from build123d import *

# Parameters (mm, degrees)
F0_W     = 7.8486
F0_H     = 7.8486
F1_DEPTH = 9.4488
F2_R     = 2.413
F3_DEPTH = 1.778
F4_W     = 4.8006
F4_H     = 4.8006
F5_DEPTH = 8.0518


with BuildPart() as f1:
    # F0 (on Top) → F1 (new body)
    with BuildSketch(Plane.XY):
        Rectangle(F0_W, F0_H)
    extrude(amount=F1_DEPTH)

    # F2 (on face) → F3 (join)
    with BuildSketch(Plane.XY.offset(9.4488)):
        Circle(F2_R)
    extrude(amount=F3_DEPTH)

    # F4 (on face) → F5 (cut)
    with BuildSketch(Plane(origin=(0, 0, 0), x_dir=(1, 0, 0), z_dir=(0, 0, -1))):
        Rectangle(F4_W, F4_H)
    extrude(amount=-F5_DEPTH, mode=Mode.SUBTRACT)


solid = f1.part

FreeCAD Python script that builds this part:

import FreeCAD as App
import Part
import Sketcher
Q = App.Units.Quantity

doc = App.newDocument("Part")
body = doc.addObject("PartDesign::Body", "Body")

# Sketch on XY plane
sketch1 = body.newObject("Sketcher::SketchObject", "Sketch")
sketch1.AttachmentSupport = (doc.getObject("XY_Plane"), [""])
sketch1.MapMode = "FlatFace"
sketch1.addGeometry([
    Part.LineSegment(App.Vector(-4, 4, 0), App.Vector(-4, -4, 0)),
    Part.LineSegment(App.Vector(-4, -4, 0), App.Vector(4, -4, 0)),
    Part.LineSegment(App.Vector(4, -4, 0), App.Vector(4, 4, 0)),
    Part.LineSegment(App.Vector(4, 4, 0), App.Vector(-4, 4, 0)),
], False)
sketch1.addConstraint([
    Sketcher.Constraint("Coincident", 0, 2, 1, 1),
    Sketcher.Constraint("Coincident", 1, 2, 2, 1),
    Sketcher.Constraint("Coincident", 2, 2, 3, 1),
    Sketcher.Constraint("Coincident", 3, 2, 0, 1),
    Sketcher.Constraint("Vertical", 0),
    Sketcher.Constraint("Horizontal", 1),
    Sketcher.Constraint("Vertical", 2),
    Sketcher.Constraint("Horizontal", 3),
    Sketcher.Constraint("Symmetric", 0, 2, 2, 2, -1, 1),
    Sketcher.Constraint("Equal", 3, 0),
    Sketcher.Constraint("DistanceX", 1, 1, 1, 2, Q("0.309 in")),
])
pad1 = body.newObject("PartDesign::Pad", "Pad")
pad1.Profile = sketch1
pad1.Length = Q("0.372 in")

# Sketch on XY plane
sketch2 = body.newObject("Sketcher::SketchObject", "Sketch001")
sketch2.AttachmentSupport = (doc.getObject("XY_Plane"), [""])
sketch2.MapMode = "FlatFace"
sketch2.AttachmentOffset = App.Placement(App.Vector(0, 0, 0.372 * 25.4), App.Rotation())
sketch2.addGeometry(Part.Circle(App.Vector(0, 0, 0), App.Vector(0, 0, 1), 2.4), False)
sketch2.addConstraint([
    Sketcher.Constraint("Coincident", 0, 3, -1, 1),
    Sketcher.Constraint("Diameter", 0, Q("0.19 in")),
])
pad2 = body.newObject("PartDesign::Pad", "Pad001")
pad2.Profile = sketch2
pad2.Length = Q("0.07 in")

# Sketch on XY plane
sketch3 = body.newObject("Sketcher::SketchObject", "Sketch002")
sketch3.AttachmentSupport = (doc.getObject("XY_Plane"), [""])
sketch3.MapMode = "FlatFace"
sketch3.addGeometry([
    Part.LineSegment(App.Vector(-2.4, -2.4, 0), App.Vector(-2.4, 2.4, 0)),
    Part.LineSegment(App.Vector(-2.4, 2.4, 0), App.Vector(2.4, 2.4, 0)),
    Part.LineSegment(App.Vector(2.4, 2.4, 0), App.Vector(2.4, -2.4, 0)),
    Part.LineSegment(App.Vector(2.4, -2.4, 0), App.Vector(-2.4, -2.4, 0)),
], False)
sketch3.addConstraint([
    Sketcher.Constraint("Coincident", 0, 2, 1, 1),
    Sketcher.Constraint("Coincident", 1, 2, 2, 1),
    Sketcher.Constraint("Coincident", 2, 2, 3, 1),
    Sketcher.Constraint("Coincident", 3, 2, 0, 1),
    Sketcher.Constraint("Vertical", 0),
    Sketcher.Constraint("Horizontal", 1),
    Sketcher.Constraint("Vertical", 2),
    Sketcher.Constraint("Horizontal", 3),
    Sketcher.Constraint("Symmetric", 0, 2, 2, 2, -1, 1),
    Sketcher.Constraint("Equal", 3, 0),
    Sketcher.Constraint("DistanceX", 1, 1, 1, 2, Q("0.189 in")),
])
pocket1 = body.newObject("PartDesign::Pocket", "Pocket")
pocket1.Profile = sketch3
pocket1.Length = Q("0.317 in")
pocket1.Reversed = True

doc.recompute()
